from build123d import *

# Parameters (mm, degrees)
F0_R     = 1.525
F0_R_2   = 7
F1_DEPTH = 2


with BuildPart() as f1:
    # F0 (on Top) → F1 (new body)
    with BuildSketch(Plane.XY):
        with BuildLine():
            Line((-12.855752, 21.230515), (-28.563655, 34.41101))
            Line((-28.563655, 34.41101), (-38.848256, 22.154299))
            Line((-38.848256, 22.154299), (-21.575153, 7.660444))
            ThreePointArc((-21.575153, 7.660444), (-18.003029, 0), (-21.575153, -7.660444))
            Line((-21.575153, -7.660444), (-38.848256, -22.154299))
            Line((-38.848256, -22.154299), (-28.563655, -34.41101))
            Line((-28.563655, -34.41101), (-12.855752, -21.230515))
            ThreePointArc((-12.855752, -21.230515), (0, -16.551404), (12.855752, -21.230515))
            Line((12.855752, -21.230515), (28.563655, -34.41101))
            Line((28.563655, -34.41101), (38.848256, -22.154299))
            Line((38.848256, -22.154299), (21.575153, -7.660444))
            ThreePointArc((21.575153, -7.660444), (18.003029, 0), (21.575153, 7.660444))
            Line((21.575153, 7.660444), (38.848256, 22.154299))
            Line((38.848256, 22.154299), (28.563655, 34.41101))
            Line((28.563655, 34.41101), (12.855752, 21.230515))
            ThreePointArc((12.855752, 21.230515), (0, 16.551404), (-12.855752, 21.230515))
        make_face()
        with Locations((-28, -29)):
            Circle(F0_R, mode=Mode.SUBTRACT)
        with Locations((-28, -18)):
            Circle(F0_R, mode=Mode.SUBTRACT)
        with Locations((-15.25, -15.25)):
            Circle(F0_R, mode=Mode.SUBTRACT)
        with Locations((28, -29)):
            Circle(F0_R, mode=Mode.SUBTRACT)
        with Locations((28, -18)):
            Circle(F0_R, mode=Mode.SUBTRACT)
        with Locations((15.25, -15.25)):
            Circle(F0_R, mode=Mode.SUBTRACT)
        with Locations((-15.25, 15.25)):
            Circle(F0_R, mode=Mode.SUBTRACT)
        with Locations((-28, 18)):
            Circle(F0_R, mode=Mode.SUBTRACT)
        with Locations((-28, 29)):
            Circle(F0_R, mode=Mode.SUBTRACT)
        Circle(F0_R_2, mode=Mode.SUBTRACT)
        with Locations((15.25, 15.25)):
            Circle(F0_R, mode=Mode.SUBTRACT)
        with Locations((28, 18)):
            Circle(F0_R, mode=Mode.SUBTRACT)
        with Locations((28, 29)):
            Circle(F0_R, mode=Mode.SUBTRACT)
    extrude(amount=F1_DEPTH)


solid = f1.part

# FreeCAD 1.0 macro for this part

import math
import FreeCAD as App
import Part
import Sketcher
from FreeCAD import Vector
Q = App.Units.Quantity

doc = App.newDocument("Part")
body = doc.addObject("PartDesign::Body", "Body")

# Sketch on XY plane
sketch1 = body.newObject("Sketcher::SketchObject", "Sketch")
sketch1.AttachmentSupport = (doc.getObject("XY_Plane"), [""])
sketch1.MapMode = "FlatFace"
sketch1.addGeometry([
    Part.LineSegment(Vector(-12.855752, 21.230515, 0), Vector(-28.563655, 34.41101, 0)),  # 0
    Part.LineSegment(Vector(-28.563655, 34.41101, 0), Vector(-38.848256, 22.154299, 0)),  # 1
    Part.LineSegment(Vector(-38.848256, 22.154299, 0), Vector(-21.575153, 7.660444, 0)),  # 2
    Part.ArcOfCircle(Part.Circle(Vector(-28.003028, 0, 0), Vector(0, 0, 1), 9.999999), math.radians(-50.000004), math.radians(50.000004)),  # 3
    Part.LineSegment(Vector(-21.575153, -7.660444, 0), Vector(-38.848256, -22.154299, 0)),  # 4
    Part.LineSegment(Vector(-38.848256, -22.154299, 0), Vector(-28.563655, -34.41101, 0)),  # 5
    Part.LineSegment(Vector(-28.563655, -34.41101, 0), Vector(-12.855752, -21.230515, 0)),  # 6
    Part.ArcOfCircle(Part.Circle(Vector(0, -36.551404, 0), Vector(0, 0, 1), 20), math.radians(50.000001), math.radians(129.999999)),  # 7
    Part.LineSegment(Vector(12.855752, -21.230515, 0), Vector(28.563655, -34.41101, 0)),  # 8
    Part.LineSegment(Vector(28.563655, -34.41101, 0), Vector(38.848256, -22.154299, 0)),  # 9
    Part.LineSegment(Vector(38.848256, -22.154299, 0), Vector(21.575153, -7.660444, 0)),  # 10
    Part.ArcOfCircle(Part.Circle(Vector(28.003028, 0, 0), Vector(0, 0, 1), 9.999999), math.radians(129.999996), math.radians(230.000004)),  # 11
    Part.LineSegment(Vector(21.575153, 7.660444, 0), Vector(38.848256, 22.154299, 0)),  # 12
    Part.LineSegment(Vector(38.848256, 22.154299, 0), Vector(28.563655, 34.41101, 0)),  # 13
    Part.LineSegment(Vector(28.563655, 34.41101, 0), Vector(12.855752, 21.230515, 0)),  # 14
    Part.ArcOfCircle(Part.Circle(Vector(0, 36.551404, 0), Vector(0, 0, 1), 20), math.radians(-129.999999), math.radians(-50.000001)),  # 15
    Part.Circle(Vector(-28, -29, 0), Vector(0, 0, 1), 1.525),  # 16
    Part.Circle(Vector(-28, -18, 0), Vector(0, 0, 1), 1.525),  # 17
    Part.Circle(Vector(-15.25, -15.25, 0), Vector(0, 0, 1), 1.525),  # 18
    Part.Circle(Vector(28, -29, 0), Vector(0, 0, 1), 1.525),  # 19
    Part.Circle(Vector(28, -18, 0), Vector(0, 0, 1), 1.525),  # 20
    Part.Circle(Vector(15.25, -15.25, 0), Vector(0, 0, 1), 1.525),  # 21
    Part.Circle(Vector(-15.25, 15.25, 0), Vector(0, 0, 1), 1.525),  # 22
    Part.Circle(Vector(0, 0, 0), Vector(0, 0, 1), 7),  # 23
    Part.Circle(Vector(-28, 18, 0), Vector(0, 0, 1), 1.525),  # 24
    Part.Circle(Vector(-28, 29, 0), Vector(0, 0, 1), 1.525),  # 25
    Part.Circle(Vector(15.25, 15.25, 0), Vector(0, 0, 1), 1.525),  # 26
    Part.Circle(Vector(28, 18, 0), Vector(0, 0, 1), 1.525),  # 27
    Part.Circle(Vector(28, 29, 0), Vector(0, 0, 1), 1.525),  # 28
], False)
sketch1.addConstraint([
    Sketcher.Constraint("Coincident", 0, 2, 1, 1),
    Sketcher.Constraint("Coincident", 1, 2, 2, 1),
    Sketcher.Constraint("Tangent", 2, 2, 3, 2),
    Sketcher.Constraint("Tangent", 3, 1, 4, 1),
    Sketcher.Constraint("Coincident", 4, 2, 5, 1),
    Sketcher.Constraint("Coincident", 5, 2, 6, 1),
    Sketcher.Constraint("Tangent", 6, 2, 7, 2),
    Sketcher.Constraint("Tangent", 7, 1, 8, 1),
    Sketcher.Constraint("Coincident", 8, 2, 9, 1),
    Sketcher.Constraint("Coincident", 9, 2, 10, 1),
    Sketcher.Constraint("Tangent", 10, 2, 11, 2),
    Sketcher.Constraint("Tangent", 11, 1, 12, 1),
    Sketcher.Constraint("Coincident", 12, 2, 13, 1),
    Sketcher.Constraint("Coincident", 13, 2, 14, 1),
    Sketcher.Constraint("Tangent", 14, 2, 15, 2),
    Sketcher.Constraint("Tangent", 15, 1, 0, 1),
    Sketcher.Constraint("Coincident", 23, 3, -1, 1),
    Sketcher.Constraint("Equal", 3, 11),
    Sketcher.Constraint("Equal", 7, 15),
    Sketcher.Constraint("Equal", 16, 17),
    Sketcher.Constraint("Equal", 17, 18),
    Sketcher.Constraint("Equal", 18, 19),
    Sketcher.Constraint("Equal", 19, 20),
    Sketcher.Constraint("Equal", 20, 21),
    Sketcher.Constraint("Equal", 21, 22),
    Sketcher.Constraint("Equal", 22, 24),
    Sketcher.Constraint("Equal", 24, 25),
    Sketcher.Constraint("Equal", 25, 26),
    Sketcher.Constraint("Equal", 26, 27),
    Sketcher.Constraint("Equal", 27, 28),
    Sketcher.Constraint("Symmetric", 3, 3, 11, 3, -1, 1),
    Sketcher.Constraint("Symmetric", 7, 3, 15, 3, -1, 1),
    Sketcher.Constraint("Symmetric", 21, 3, 22, 3, -1, 1),
    Sketcher.Constraint("Symmetric", 20, 3, 24, 3, -1, 1),
    Sketcher.Constraint("Symmetric", 19, 3, 25, 3, -1, 1),
    Sketcher.Constraint("Symmetric", 18, 3, 26, 3, -1, 1),
    Sketcher.Constraint("Symmetric", 17, 3, 27, 3, -1, 1),
    Sketcher.Constraint("Symmetric", 16, 3, 28, 3, -1, 1),
    Sketcher.Constraint("Symmetric", 0, 2, 8, 2, -1, 1),
    Sketcher.Constraint("Symmetric", 1, 2, 9, 2, -1, 1),
    Sketcher.Constraint("Symmetric", 4, 2, 12, 2, -1, 1),
    Sketcher.Constraint("Symmetric", 5, 2, 13, 2, -1, 1),
    Sketcher.Constraint("Symmetric", 16, 3, 19, 3, -2),
    Sketcher.Constraint("Symmetric", 17, 3, 20, 3, -2),
    Sketcher.Constraint("Symmetric", 18, 3, 21, 3, -2),
    Sketcher.Constraint("Symmetric", 6, 2, 7, 1, -2),
    Sketcher.Constraint("Symmetric", 4, 2, 9, 2, -2),
    Sketcher.Constraint("PointOnObject", 3, 3, -1),
    Sketcher.Constraint("Perpendicular", 0, 1),
    Sketcher.Constraint("Perpendicular", 1, 2),
    Sketcher.Constraint("Perpendicular", 4, 5),
    Sketcher.Constraint("Vertical", 16, 3, 17, 3),
    Sketcher.Constraint("Diameter", 23, Q("14 mm")),
    Sketcher.Constraint("Radius", 3, Q("9.999999 mm")),
    Sketcher.Constraint("Radius", 7, Q("20 mm")),
    Sketcher.Constraint("Diameter", 16, Q("3.05 mm")),
    Sketcher.Constraint("Angle", 0, Q("140.000001 deg")),
    Sketcher.Constraint("Distance", 1, Q("15.999999 mm")),
    Sketcher.Constraint("DistanceX", 16, 3, -1, 1, Q("28 mm")),
    Sketcher.Constraint("DistanceY", 16, 3, -1, 1, Q("29 mm")),
    Sketcher.Constraint("DistanceY", 17, 3, -1, 1, Q("18 mm")),
    Sketcher.Constraint("DistanceX", 18, 3, 21, 3, Q("30.5 mm")),
    Sketcher.Constraint("DistanceY", 18, 3, 22, 3, Q("30.5 mm")),
    Sketcher.Constraint("DistanceY", -1, 1, 1, 2, Q("22.154299 mm")),
    Sketcher.Constraint("DistanceX", 3, 1, 6, 2, Q("8.719401 mm")),
])
pad1 = body.newObject("PartDesign::Pad", "Pad")
pad1.Profile = sketch1
pad1.Length = 2

doc.recompute()
